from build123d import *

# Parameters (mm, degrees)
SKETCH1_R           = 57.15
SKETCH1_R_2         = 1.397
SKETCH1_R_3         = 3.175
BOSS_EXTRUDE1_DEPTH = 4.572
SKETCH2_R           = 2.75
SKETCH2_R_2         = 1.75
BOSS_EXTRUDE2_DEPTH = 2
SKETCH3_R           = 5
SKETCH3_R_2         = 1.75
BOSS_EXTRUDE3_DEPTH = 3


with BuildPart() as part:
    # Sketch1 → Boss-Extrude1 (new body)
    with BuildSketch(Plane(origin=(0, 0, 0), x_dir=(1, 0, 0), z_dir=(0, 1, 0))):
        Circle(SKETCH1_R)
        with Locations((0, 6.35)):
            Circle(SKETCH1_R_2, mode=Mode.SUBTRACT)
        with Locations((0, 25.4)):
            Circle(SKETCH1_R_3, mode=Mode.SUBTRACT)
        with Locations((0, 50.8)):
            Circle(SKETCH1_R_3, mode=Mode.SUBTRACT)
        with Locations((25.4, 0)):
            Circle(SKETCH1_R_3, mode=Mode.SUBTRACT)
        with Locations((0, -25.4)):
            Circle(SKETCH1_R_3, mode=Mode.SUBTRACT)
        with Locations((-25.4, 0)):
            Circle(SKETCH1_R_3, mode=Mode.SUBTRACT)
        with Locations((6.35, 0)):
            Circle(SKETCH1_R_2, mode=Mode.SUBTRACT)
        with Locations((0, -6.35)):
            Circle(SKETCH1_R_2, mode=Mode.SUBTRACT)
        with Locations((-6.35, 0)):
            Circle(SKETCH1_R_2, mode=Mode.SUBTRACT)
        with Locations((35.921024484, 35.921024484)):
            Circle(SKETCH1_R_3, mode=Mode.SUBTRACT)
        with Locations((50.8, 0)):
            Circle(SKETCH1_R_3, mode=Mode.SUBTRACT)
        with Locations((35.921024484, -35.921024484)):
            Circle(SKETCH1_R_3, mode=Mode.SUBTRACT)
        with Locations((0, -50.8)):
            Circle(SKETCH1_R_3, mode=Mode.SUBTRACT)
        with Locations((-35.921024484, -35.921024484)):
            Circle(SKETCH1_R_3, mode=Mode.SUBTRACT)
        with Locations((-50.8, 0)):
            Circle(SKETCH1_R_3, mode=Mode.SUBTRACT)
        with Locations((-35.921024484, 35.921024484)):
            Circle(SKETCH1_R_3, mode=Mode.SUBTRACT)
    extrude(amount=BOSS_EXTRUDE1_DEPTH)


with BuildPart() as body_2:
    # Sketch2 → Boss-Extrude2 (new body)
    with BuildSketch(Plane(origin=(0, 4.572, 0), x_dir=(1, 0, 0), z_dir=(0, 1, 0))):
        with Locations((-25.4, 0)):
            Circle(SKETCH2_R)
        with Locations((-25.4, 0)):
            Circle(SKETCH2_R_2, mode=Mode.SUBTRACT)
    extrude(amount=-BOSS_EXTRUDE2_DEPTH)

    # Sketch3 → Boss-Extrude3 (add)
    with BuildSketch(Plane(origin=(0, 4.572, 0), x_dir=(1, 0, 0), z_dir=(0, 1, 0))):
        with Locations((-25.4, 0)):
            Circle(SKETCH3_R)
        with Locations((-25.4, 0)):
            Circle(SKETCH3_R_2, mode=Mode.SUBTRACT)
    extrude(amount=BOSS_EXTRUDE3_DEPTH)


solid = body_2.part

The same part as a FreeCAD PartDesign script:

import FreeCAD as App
import Part
import Sketcher

V = App.Vector

doc = App.newDocument("Part")
body = doc.addObject("PartDesign::Body", "Body")

sketch1 = body.newObject("Sketcher::SketchObject", "Sketch")
sketch1.AttachmentSupport = (doc.getObject("XZ_Plane"), [""])
sketch1.MapMode = "FlatFace"
sketch1.addGeometry(Part.Circle(V(0, 0, 0), V(0, 0, 1), 57.15), False)
sketch1.addGeometry(Part.Circle(V(-35.921024, 35.921024, 0), V(0, 0, 1), 3.175), False)
sketch1.addGeometry(Part.Circle(V(0, 50.8, 0), V(0, 0, 1), 3.175), False)
sketch1.addGeometry(Part.Circle(V(35.921024, 35.921024, 0), V(0, 0, 1), 3.175), False)
sketch1.addGeometry(Part.Circle(V(0, 25.4, 0), V(0, 0, 1), 3.175), False)
sketch1.addGeometry(Part.Circle(V(0, 6.35, 0), V(0, 0, 1), 1.397), False)
sketch1.addGeometry(Part.Circle(V(-50.8, 0, 0), V(0, 0, 1), 3.175), False)
sketch1.addGeometry(Part.Circle(V(-25.4, 0, 0), V(0, 0, 1), 3.175), False)
sketch1.addGeometry(Part.Circle(V(-6.35, 0, 0), V(0, 0, 1), 1.397), False)
sketch1.addGeometry(Part.Circle(V(-35.921024, -35.921024, 0), V(0, 0, 1), 3.175), False)
sketch1.addGeometry(Part.Circle(V(6.35, 0, 0), V(0, 0, 1), 1.397), False)
sketch1.addGeometry(Part.Circle(V(0, -6.35, 0), V(0, 0, 1), 1.397), False)
sketch1.addGeometry(Part.Circle(V(25.4, 0, 0), V(0, 0, 1), 3.175), False)
sketch1.addGeometry(Part.Circle(V(0, -25.4, 0), V(0, 0, 1), 3.175), False)
sketch1.addGeometry(Part.Circle(V(50.8, 0, 0), V(0, 0, 1), 3.175), False)
sketch1.addGeometry(Part.Circle(V(0, -50.8, 0), V(0, 0, 1), 3.175), False)
sketch1.addGeometry(Part.Circle(V(35.921024, -35.921024, 0), V(0, 0, 1), 3.175), False)
sketch1.addConstraint(Sketcher.Constraint("Coincident", 0, 3, -1, 1))
sketch1.addConstraint(Sketcher.Constraint("Equal", 1, 2))
sketch1.addConstraint(Sketcher.Constraint("Equal", 2, 3))
sketch1.addConstraint(Sketcher.Constraint("Equal", 3, 4))
sketch1.addConstraint(Sketcher.Constraint("Equal", 4, 6))
sketch1.addConstraint(Sketcher.Constraint("Equal", 6, 7))
sketch1.addConstraint(Sketcher.Constraint("Equal", 5, 8))
sketch1.addConstraint(Sketcher.Constraint("Equal", 7, 9))
sketch1.addConstraint(Sketcher.Constraint("Equal", 8, 10))
sketch1.addConstraint(Sketcher.Constraint("Equal", 10, 11))
sketch1.addConstraint(Sketcher.Constraint("Equal", 9, 12))
sketch1.addConstraint(Sketcher.Constraint("Equal", 12, 13))
sketch1.addConstraint(Sketcher.Constraint("Equal", 13, 14))
sketch1.addConstraint(Sketcher.Constraint("Equal", 14, 15))
sketch1.addConstraint(Sketcher.Constraint("Equal", 15, 16))
sketch1.addConstraint(Sketcher.Constraint("Symmetric", 3, 3, 9, 3, -1, 1))
sketch1.addConstraint(Sketcher.Constraint("Symmetric", 8, 3, 10, 3, -1, 1))
sketch1.addConstraint(Sketcher.Constraint("Symmetric", 5, 3, 11, 3, -1, 1))
sketch1.addConstraint(Sketcher.Constraint("Symmetric", 7, 3, 12, 3, -1, 1))
sketch1.addConstraint(Sketcher.Constraint("Symmetric", 4, 3, 13, 3, -1, 1))
sketch1.addConstraint(Sketcher.Constraint("Symmetric", 6, 3, 14, 3, -1, 1))
sketch1.addConstraint(Sketcher.Constraint("Symmetric", 2, 3, 15, 3, -1, 1))
sketch1.addConstraint(Sketcher.Constraint("Symmetric", 1, 3, 16, 3, -1, 1))
sketch1.addConstraint(Sketcher.Constraint("Symmetric", 1, 3, 3, 3, -2))
sketch1.addConstraint(Sketcher.Constraint("PointOnObject", 2, 3, -2))
sketch1.addConstraint(Sketcher.Constraint("PointOnObject", 4, 3, -2))
sketch1.addConstraint(Sketcher.Constraint("PointOnObject", 5, 3, -2))
sketch1.addConstraint(Sketcher.Constraint("PointOnObject", 6, 3, -1))
sketch1.addConstraint(Sketcher.Constraint("PointOnObject", 7, 3, -1))
sketch1.addConstraint(Sketcher.Constraint("PointOnObject", 8, 3, -1))
sketch1.addConstraint(Sketcher.Constraint("Diameter", 0, 114.3))
sketch1.addConstraint(Sketcher.Constraint("Diameter", 1, 6.35))
sketch1.addConstraint(Sketcher.Constraint("Diameter", 5, 2.794))
sketch1.addConstraint(Sketcher.Constraint("DistanceY", -1, 1, 2, 3, 50.8))
sketch1.addConstraint(Sketcher.Constraint("DistanceY", -1, 1, 4, 3, 25.4))
sketch1.addConstraint(Sketcher.Constraint("DistanceX", 6, 3, -1, 1, 50.8))
sketch1.addConstraint(Sketcher.Constraint("DistanceX", 7, 3, -1, 1, 25.4))
sketch1.addConstraint(Sketcher.Constraint("DistanceX", 8, 3, 10, 3, 12.7))
sketch1.addConstraint(Sketcher.Constraint("DistanceY", 11, 3, 5, 3, 12.7))
sketch1.addConstraint(Sketcher.Constraint("DistanceX", 1, 3, 3, 3, 71.842049))
sketch1.addConstraint(Sketcher.Constraint("DistanceY", -1, 1, 1, 3, 35.921024))
pad1 = body.newObject("PartDesign::Pad", "Pad")
pad1.Profile = sketch1
pad1.Length = 4.572
pad1.Reversed = True
body2 = doc.addObject("PartDesign::Body", "Body001")

sketch2 = body2.newObject("Sketcher::SketchObject", "Sketch001")
sketch2.AttachmentSupport = (doc.getObject("XZ_Plane001"), [""])
sketch2.MapMode = "FlatFace"
sketch2.AttachmentOffset = App.Placement(V(0, 0, -4.572), App.Rotation())
sketch2.addGeometry(Part.Circle(V(-25.4, 0, 0), V(0, 0, 1), 2.75), False)
sketch2.addGeometry(Part.Circle(V(-25.4, 0, 0), V(0, 0, 1), 1.75), False)
sketch2.addConstraint(Sketcher.Constraint("Coincident", 1, 3, 0, 3))
sketch2.addConstraint(Sketcher.Constraint("PointOnObject", 0, 3, -1))
sketch2.addConstraint(Sketcher.Constraint("Diameter", 0, 5.5))
sketch2.addConstraint(Sketcher.Constraint("Diameter", 1, 3.5))
sketch2.addConstraint(Sketcher.Constraint("DistanceX", 0, 3, -1, 1, 25.4))
pad2 = body2.newObject("PartDesign::Pad", "Pad001")
pad2.Profile = sketch2
pad2.Length = 2

sketch3 = body2.newObject("Sketcher::SketchObject", "Sketch002")
sketch3.AttachmentSupport = (doc.getObject("XZ_Plane001"), [""])
sketch3.MapMode = "FlatFace"
sketch3.AttachmentOffset = App.Placement(V(0, 0, -4.572), App.Rotation())
sketch3.addGeometry(Part.Circle(V(-25.4, 0, 0), V(0, 0, 1), 5), False)
sketch3.addGeometry(Part.Circle(V(-25.4, 0, 0), V(0, 0, 1), 1.75), False)
sketch3.addConstraint(Sketcher.Constraint("Coincident", 1, 3, 0, 3))
sketch3.addConstraint(Sketcher.Constraint("PointOnObject", 0, 3, -1))
sketch3.addConstraint(Sketcher.Constraint("Diameter", 0, 10.0))
sketch3.addConstraint(Sketcher.Constraint("Diameter", 1, 3.5))
sketch3.addConstraint(Sketcher.Constraint("DistanceX", 0, 3, -1, 1, 25.4))
pad3 = body2.newObject("PartDesign::Pad", "Pad002")
pad3.Profile = sketch3
pad3.Length = 3
pad3.Reversed = True
body.Visibility = False

doc.recompute()
